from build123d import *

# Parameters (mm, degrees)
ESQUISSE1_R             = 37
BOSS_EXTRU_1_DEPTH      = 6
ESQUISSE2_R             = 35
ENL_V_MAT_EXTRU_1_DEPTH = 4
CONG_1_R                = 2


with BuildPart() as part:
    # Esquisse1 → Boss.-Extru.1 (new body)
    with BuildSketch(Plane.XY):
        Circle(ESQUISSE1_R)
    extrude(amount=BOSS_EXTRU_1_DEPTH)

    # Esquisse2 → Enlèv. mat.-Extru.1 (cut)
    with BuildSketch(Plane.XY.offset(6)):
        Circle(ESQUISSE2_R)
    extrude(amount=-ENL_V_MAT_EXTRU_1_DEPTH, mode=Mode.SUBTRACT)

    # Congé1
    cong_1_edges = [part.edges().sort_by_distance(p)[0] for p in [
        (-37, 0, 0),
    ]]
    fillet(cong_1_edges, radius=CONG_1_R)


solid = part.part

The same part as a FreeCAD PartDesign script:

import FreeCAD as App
import Part
import Sketcher
from FreeCAD import Vector


def edges_at(feature, points):
    """Names of the edges that pass closest to the given points."""
    edges = feature.Shape.Edges
    near = lambda p: min(range(len(edges)), key=lambda i: edges[i].distToShape(Part.Vertex(*p))[0])
    return sorted({f"Edge{near(p) + 1}" for p in points})

doc = App.newDocument("Part")
body = doc.addObject("PartDesign::Body", "Body")

sketch1 = body.newObject("Sketcher::SketchObject", "Sketch")
sketch1.AttachmentSupport = (doc.getObject("XY_Plane"), [""])
sketch1.MapMode = "FlatFace"
sketch1.addGeometry(Part.Circle(Vector(0, 0, 0), Vector(0, 0, 1), 37), False)
sketch1.addConstraint(Sketcher.Constraint("Coincident", 0, 3, -1, 1))
sketch1.addConstraint(Sketcher.Constraint("Diameter", 0, 74.0))
pad1 = body.newObject("PartDesign::Pad", "Pad")
pad1.Profile = sketch1
pad1.Length = 6

sketch2 = body.newObject("Sketcher::SketchObject", "Sketch001")
sketch2.AttachmentSupport = (doc.getObject("XY_Plane"), [""])
sketch2.MapMode = "FlatFace"
sketch2.AttachmentOffset = App.Placement(Vector(0, 0, 6), App.Rotation())
sketch2.addGeometry(Part.Circle(Vector(0, 0, 0), Vector(0, 0, 1), 35), False)
sketch2.addConstraint(Sketcher.Constraint("Coincident", 0, 3, -1, 1))
sketch2.addConstraint(Sketcher.Constraint("Diameter", 0, 70.0))
pocket1 = body.newObject("PartDesign::Pocket", "Pocket")
pocket1.Profile = sketch2
pocket1.Length = 4
doc.recompute()

fillet = body.newObject("PartDesign::Fillet", "Fillet")
fillet.Base = (pocket1, edges_at(pocket1, [(-37, 0, 0)]))
fillet.Radius = 2

doc.recompute()
